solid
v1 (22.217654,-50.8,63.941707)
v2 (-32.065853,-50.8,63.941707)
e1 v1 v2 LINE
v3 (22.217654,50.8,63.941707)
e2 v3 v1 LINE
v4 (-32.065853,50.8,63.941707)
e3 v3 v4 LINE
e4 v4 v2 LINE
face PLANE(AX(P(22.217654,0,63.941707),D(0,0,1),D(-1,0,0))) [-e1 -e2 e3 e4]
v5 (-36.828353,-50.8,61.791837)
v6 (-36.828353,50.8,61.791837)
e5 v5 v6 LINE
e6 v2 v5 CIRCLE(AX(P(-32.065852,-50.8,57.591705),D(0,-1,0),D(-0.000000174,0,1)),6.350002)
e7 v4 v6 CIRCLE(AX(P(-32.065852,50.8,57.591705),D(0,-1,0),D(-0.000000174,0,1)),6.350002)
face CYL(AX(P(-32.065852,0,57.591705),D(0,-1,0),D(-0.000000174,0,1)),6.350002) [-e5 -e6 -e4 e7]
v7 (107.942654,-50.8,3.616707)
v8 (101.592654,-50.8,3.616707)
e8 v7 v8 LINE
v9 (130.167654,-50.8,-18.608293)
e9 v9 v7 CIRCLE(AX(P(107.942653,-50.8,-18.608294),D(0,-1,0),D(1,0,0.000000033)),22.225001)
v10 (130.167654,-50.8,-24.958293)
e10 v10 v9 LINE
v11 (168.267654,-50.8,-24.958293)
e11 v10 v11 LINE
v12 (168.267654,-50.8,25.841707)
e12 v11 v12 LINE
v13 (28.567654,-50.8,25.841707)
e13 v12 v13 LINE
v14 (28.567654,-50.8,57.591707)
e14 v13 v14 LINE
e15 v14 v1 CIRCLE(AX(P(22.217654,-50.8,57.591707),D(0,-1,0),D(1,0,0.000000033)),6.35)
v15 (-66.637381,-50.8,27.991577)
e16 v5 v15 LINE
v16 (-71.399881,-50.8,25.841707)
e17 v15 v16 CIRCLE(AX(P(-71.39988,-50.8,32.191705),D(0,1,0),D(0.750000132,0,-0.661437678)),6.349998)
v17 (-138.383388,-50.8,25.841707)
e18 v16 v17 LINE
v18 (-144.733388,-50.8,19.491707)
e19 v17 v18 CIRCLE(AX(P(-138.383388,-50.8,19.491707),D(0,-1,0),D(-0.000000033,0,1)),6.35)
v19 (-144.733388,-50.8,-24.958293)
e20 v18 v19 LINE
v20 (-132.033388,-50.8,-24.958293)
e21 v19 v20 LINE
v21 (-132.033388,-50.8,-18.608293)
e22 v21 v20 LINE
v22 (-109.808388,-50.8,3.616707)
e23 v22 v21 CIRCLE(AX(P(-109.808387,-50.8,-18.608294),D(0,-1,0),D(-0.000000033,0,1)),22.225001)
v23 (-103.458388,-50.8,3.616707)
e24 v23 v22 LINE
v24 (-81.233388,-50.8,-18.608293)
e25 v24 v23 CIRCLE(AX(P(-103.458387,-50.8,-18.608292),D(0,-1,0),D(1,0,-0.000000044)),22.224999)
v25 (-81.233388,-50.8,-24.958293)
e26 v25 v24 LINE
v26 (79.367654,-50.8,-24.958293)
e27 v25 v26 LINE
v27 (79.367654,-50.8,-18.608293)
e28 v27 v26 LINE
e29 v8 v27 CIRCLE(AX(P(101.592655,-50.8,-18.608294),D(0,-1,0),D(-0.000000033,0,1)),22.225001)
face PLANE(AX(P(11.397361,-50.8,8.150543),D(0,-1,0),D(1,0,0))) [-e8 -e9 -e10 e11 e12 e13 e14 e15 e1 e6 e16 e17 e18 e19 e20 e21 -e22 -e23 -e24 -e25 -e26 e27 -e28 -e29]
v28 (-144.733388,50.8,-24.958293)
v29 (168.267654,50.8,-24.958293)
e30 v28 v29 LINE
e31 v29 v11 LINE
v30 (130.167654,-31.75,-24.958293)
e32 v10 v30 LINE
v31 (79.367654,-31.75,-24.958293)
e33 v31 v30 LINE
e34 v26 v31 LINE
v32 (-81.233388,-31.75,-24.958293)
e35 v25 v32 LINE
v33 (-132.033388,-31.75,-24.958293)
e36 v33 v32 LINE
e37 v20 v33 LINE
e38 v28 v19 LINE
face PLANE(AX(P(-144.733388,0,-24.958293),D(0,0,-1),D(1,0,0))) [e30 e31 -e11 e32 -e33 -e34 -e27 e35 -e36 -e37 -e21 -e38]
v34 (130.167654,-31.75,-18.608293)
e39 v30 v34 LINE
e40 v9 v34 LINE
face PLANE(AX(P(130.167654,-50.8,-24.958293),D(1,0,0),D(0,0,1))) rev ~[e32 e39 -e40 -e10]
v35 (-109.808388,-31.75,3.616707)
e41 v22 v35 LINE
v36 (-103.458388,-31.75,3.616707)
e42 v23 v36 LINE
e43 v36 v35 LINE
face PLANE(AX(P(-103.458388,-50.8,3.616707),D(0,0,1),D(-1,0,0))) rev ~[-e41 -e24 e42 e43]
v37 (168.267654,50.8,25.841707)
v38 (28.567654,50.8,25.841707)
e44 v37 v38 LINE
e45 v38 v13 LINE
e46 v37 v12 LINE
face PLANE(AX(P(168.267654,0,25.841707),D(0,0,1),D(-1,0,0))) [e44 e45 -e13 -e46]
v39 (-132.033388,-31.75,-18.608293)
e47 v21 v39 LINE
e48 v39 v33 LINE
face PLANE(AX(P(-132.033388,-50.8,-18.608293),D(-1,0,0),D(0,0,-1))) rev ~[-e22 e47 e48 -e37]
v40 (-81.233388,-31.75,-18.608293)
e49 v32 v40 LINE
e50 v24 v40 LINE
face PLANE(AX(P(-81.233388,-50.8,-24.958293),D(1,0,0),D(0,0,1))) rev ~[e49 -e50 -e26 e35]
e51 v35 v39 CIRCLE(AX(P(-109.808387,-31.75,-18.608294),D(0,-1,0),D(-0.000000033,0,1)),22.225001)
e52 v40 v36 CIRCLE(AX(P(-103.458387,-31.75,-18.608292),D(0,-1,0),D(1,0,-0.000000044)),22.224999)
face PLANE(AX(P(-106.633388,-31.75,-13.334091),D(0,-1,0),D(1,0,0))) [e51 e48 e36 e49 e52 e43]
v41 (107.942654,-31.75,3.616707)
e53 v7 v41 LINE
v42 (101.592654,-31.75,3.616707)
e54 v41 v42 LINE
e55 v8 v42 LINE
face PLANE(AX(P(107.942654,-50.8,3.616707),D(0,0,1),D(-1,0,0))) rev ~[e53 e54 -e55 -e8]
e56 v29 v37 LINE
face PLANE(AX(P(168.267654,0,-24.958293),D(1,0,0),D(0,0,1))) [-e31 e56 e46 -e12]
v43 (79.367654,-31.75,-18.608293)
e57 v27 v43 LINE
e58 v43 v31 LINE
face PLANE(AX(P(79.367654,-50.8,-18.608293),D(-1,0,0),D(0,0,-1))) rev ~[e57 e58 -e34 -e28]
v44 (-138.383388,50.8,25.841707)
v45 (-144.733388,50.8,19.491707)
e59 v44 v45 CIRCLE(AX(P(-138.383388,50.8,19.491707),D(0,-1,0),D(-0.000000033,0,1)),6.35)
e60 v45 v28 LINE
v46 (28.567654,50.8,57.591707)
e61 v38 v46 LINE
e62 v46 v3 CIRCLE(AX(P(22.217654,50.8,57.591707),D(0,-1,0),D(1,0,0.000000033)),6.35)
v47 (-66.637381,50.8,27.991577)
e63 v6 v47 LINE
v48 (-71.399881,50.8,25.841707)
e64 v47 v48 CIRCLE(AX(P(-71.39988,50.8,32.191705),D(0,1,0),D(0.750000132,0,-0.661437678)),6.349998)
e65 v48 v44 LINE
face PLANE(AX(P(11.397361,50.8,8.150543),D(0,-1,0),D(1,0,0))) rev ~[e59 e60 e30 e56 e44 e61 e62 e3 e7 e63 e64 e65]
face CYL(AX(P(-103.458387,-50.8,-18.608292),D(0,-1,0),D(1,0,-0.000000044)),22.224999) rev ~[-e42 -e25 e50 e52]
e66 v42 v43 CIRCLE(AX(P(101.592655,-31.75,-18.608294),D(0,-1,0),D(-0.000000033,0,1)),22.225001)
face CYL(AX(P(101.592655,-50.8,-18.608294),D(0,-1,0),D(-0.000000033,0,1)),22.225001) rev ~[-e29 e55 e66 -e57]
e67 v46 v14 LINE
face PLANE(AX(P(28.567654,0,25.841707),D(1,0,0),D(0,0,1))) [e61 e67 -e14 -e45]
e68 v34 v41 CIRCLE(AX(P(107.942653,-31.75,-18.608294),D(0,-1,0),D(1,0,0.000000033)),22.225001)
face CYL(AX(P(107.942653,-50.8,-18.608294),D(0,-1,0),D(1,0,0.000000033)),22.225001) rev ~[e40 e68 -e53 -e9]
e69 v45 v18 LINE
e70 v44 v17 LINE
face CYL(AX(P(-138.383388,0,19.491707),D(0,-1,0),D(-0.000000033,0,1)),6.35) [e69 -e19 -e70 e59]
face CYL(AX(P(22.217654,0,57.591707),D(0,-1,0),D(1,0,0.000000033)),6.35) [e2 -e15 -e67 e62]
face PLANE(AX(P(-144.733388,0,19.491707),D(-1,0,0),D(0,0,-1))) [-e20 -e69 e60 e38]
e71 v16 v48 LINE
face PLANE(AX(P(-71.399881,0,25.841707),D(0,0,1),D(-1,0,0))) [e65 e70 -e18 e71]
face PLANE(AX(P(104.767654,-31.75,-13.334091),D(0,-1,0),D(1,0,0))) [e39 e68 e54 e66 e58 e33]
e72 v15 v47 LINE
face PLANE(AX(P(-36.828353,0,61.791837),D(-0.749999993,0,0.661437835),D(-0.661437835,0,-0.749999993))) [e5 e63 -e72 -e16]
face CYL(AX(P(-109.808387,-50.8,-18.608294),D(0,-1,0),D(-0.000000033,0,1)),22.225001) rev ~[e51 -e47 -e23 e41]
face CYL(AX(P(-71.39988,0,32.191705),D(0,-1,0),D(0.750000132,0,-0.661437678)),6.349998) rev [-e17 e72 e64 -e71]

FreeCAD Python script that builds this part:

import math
import FreeCAD as App
import Part
import Sketcher
Q = App.Units.Quantity

doc = App.newDocument("Part")
body = doc.addObject("PartDesign::Body", "Body")

sketch1 = body.newObject("Sketcher::SketchObject", "Sketch")
sketch1.AttachmentSupport = (doc.getObject("XZ_Plane"), [""])
sketch1.MapMode = "FlatFace"
sketch1.addGeometry([
    Part.LineSegment(App.Vector(-71, 26, 0), App.Vector(-138, 26, 0)),
    Part.ArcOfCircle(Part.Circle(App.Vector(-138, 19, 0), App.Vector(0, 0, 1), 6), math.radians(90), math.radians(180)),
    Part.LineSegment(App.Vector(-145, 19, 0), App.Vector(-145, -25, 0)),
    Part.LineSegment(App.Vector(-145, -25, 0), App.Vector(168, -25, 0)),
    Part.LineSegment(App.Vector(168, -25, 0), App.Vector(168, 26, 0)),
    Part.LineSegment(App.Vector(168, 26, 0), App.Vector(29, 26, 0)),
    Part.LineSegment(App.Vector(29, 26, 0), App.Vector(29, 58, 0)),
    Part.ArcOfCircle(Part.Circle(App.Vector(22, 58, 0), App.Vector(0, 0, 1), 6), math.radians(0), math.radians(90)),
    Part.LineSegment(App.Vector(22, 64, 0), App.Vector(-32, 64, 0)),
    Part.ArcOfCircle(Part.Circle(App.Vector(-32, 58, 0), App.Vector(0, 0, 1), 6), math.radians(90), math.radians(139)),
    Part.LineSegment(App.Vector(-37, 62, 0), App.Vector(-67, 28, 0)),
    Part.ArcOfCircle(Part.Circle(App.Vector(-71, 32, 0), App.Vector(0, 0, 1), 6), math.radians(-90), math.radians(-41)),
], False)
sketch1.addConstraint([
    Sketcher.Constraint("Tangent", 0, 2, 1, 1),
    Sketcher.Constraint("Tangent", 1, 2, 2, 1),
    Sketcher.Constraint("Coincident", 2, 2, 3, 1),
    Sketcher.Constraint("Coincident", 3, 2, 4, 1),
    Sketcher.Constraint("Coincident", 4, 2, 5, 1),
    Sketcher.Constraint("Coincident", 5, 2, 6, 1),
    Sketcher.Constraint("Tangent", 6, 2, 7, 1),
    Sketcher.Constraint("Tangent", 7, 2, 8, 1),
    Sketcher.Constraint("Tangent", 8, 2, 9, 1),
    Sketcher.Constraint("Tangent", 9, 2, 10, 1),
    Sketcher.Constraint("Tangent", 10, 2, 11, 2),
    Sketcher.Constraint("Tangent", 11, 1, 0, 1),
    Sketcher.Constraint("Horizontal", 0),
    Sketcher.Constraint("Vertical", 2),
    Sketcher.Constraint("Horizontal", 3),
    Sketcher.Constraint("Vertical", 4),
    Sketcher.Constraint("Horizontal", 5),
    Sketcher.Constraint("Vertical", 6),
    Sketcher.Constraint("Horizontal", 8),
    Sketcher.Constraint("Equal", 1, 7),
    Sketcher.Constraint("Equal", 7, 9),
    Sketcher.Constraint("Horizontal", 0, 2, 4, 2),
    Sketcher.Constraint("DistanceY", 4, 1, 4, 2, Q("2 in")),
    Sketcher.Constraint("Radius", 1, Q("0.25 in")),
    Sketcher.Constraint("Radius", 11, Q("0.2499999 in")),
    Sketcher.Constraint("DistanceX", 5, 2, 5, 1, Q("5.5 in")),
    Sketcher.Constraint("DistanceY", 11, 3, 9, 3, Q("1 in")),
    Sketcher.Constraint("DistanceX", 9, 2, 8, 2, Q("0.1875 in")),
    Sketcher.Constraint("DistanceX", 3, 1, 3, 2, 313.001042),
    Sketcher.Constraint("DistanceX", 0, 2, 0, 1, 66.983507),
    Sketcher.Constraint("DistanceX", 9, 3, -1, 1, 32.065852),
    Sketcher.Constraint("DistanceY", -1, 1, 1, 3, 19.491707),
])
pad1 = body.newObject("PartDesign::Pad", "Pad")
pad1.Profile = sketch1
pad1.Length = Q("4 in")
pad1.Midplane = True

sketch2 = body.newObject("Sketcher::SketchObject", "Sketch001")
sketch2.AttachmentSupport = (doc.getObject("XZ_Plane"), [""])
sketch2.MapMode = "FlatFace"
sketch2.AttachmentOffset = App.Placement(App.Vector(0, 0, 2 * 25.4), App.Rotation())
sketch2.addGeometry([
    Part.LineSegment(App.Vector(-132, -19, 0), App.Vector(-132, -25, 0)),
    Part.LineSegment(App.Vector(-132, -25, 0), App.Vector(-81, -25, 0)),
    Part.LineSegment(App.Vector(-81, -25, 0), App.Vector(-81, -19, 0)),
    Part.ArcOfCircle(Part.Circle(App.Vector(-103, -19, 0), App.Vector(0, 0, 1), 22), math.radians(0), math.radians(90)),
    Part.LineSegment(App.Vector(-103, 4, 0), App.Vector(-110, 4, 0)),
    Part.ArcOfCircle(Part.Circle(App.Vector(-110, -19, 0), App.Vector(0, 0, 1), 22), math.radians(90), math.radians(180)),
    Part.LineSegment(App.Vector(79, -19, 0), App.Vector(79, -25, 0)),
    Part.LineSegment(App.Vector(79, -25, 0), App.Vector(130, -25, 0)),
    Part.LineSegment(App.Vector(130, -25, 0), App.Vector(130, -19, 0)),
    Part.ArcOfCircle(Part.Circle(App.Vector(108, -19, 0), App.Vector(0, 0, 1), 22), math.radians(0), math.radians(90)),
    Part.LineSegment(App.Vector(108, 4, 0), App.Vector(102, 4, 0)),
    Part.ArcOfCircle(Part.Circle(App.Vector(102, -19, 0), App.Vector(0, 0, 1), 22), math.radians(90), math.radians(180)),
], False)
sketch2.addConstraint([
    Sketcher.Constraint("Coincident", 0, 2, 1, 1),
    Sketcher.Constraint("Coincident", 1, 2, 2, 1),
    Sketcher.Constraint("Tangent", 2, 2, 3, 1),
    Sketcher.Constraint("Tangent", 3, 2, 4, 1),
    Sketcher.Constraint("Tangent", 4, 2, 5, 1),
    Sketcher.Constraint("Tangent", 5, 2, 0, 1),
    Sketcher.Constraint("Coincident", 6, 2, 7, 1),
    Sketcher.Constraint("Coincident", 7, 2, 8, 1),
    Sketcher.Constraint("Tangent", 8, 2, 9, 1),
    Sketcher.Constraint("Tangent", 9, 2, 10, 1),
    Sketcher.Constraint("Tangent", 10, 2, 11, 1),
    Sketcher.Constraint("Tangent", 11, 2, 6, 1),
    Sketcher.Constraint("Vertical", 0),
    Sketcher.Constraint("Horizontal", 1),
    Sketcher.Constraint("Vertical", 2),
    Sketcher.Constraint("Horizontal", 4),
    Sketcher.Constraint("Vertical", 6),
    Sketcher.Constraint("Horizontal", 7),
    Sketcher.Constraint("Vertical", 8),
    Sketcher.Constraint("Horizontal", 10),
    Sketcher.Constraint("Equal", 3, 5),
    Sketcher.Constraint("Equal", 5, 9),
    Sketcher.Constraint("Equal", 9, 11),
    Sketcher.Constraint("Horizontal", 5, 3, 9, 3),
    Sketcher.Constraint("Horizontal", 1, 2, 6, 2),
    Sketcher.Constraint("Equal", 1, 7),
    Sketcher.Constraint("Equal", 10, 0),
    Sketcher.Constraint("DistanceX", 1, 1, 1, 2, Q("2 in")),
    Sketcher.Constraint("Radius", 3, Q("0.875 in")),
    Sketcher.Constraint("DistanceX", 0, 2, -1, 1, 132.033388),
    Sketcher.Constraint("DistanceX", 3, 3, 9, 3, 211.40104),
    Sketcher.Constraint("DistanceY", 3, 3, -1, 1, 18.608292),
])
pocket1 = body.newObject("PartDesign::Pocket", "Pocket")
pocket1.Profile = sketch2
pocket1.Length = Q("0.75 in")

doc.recompute()
